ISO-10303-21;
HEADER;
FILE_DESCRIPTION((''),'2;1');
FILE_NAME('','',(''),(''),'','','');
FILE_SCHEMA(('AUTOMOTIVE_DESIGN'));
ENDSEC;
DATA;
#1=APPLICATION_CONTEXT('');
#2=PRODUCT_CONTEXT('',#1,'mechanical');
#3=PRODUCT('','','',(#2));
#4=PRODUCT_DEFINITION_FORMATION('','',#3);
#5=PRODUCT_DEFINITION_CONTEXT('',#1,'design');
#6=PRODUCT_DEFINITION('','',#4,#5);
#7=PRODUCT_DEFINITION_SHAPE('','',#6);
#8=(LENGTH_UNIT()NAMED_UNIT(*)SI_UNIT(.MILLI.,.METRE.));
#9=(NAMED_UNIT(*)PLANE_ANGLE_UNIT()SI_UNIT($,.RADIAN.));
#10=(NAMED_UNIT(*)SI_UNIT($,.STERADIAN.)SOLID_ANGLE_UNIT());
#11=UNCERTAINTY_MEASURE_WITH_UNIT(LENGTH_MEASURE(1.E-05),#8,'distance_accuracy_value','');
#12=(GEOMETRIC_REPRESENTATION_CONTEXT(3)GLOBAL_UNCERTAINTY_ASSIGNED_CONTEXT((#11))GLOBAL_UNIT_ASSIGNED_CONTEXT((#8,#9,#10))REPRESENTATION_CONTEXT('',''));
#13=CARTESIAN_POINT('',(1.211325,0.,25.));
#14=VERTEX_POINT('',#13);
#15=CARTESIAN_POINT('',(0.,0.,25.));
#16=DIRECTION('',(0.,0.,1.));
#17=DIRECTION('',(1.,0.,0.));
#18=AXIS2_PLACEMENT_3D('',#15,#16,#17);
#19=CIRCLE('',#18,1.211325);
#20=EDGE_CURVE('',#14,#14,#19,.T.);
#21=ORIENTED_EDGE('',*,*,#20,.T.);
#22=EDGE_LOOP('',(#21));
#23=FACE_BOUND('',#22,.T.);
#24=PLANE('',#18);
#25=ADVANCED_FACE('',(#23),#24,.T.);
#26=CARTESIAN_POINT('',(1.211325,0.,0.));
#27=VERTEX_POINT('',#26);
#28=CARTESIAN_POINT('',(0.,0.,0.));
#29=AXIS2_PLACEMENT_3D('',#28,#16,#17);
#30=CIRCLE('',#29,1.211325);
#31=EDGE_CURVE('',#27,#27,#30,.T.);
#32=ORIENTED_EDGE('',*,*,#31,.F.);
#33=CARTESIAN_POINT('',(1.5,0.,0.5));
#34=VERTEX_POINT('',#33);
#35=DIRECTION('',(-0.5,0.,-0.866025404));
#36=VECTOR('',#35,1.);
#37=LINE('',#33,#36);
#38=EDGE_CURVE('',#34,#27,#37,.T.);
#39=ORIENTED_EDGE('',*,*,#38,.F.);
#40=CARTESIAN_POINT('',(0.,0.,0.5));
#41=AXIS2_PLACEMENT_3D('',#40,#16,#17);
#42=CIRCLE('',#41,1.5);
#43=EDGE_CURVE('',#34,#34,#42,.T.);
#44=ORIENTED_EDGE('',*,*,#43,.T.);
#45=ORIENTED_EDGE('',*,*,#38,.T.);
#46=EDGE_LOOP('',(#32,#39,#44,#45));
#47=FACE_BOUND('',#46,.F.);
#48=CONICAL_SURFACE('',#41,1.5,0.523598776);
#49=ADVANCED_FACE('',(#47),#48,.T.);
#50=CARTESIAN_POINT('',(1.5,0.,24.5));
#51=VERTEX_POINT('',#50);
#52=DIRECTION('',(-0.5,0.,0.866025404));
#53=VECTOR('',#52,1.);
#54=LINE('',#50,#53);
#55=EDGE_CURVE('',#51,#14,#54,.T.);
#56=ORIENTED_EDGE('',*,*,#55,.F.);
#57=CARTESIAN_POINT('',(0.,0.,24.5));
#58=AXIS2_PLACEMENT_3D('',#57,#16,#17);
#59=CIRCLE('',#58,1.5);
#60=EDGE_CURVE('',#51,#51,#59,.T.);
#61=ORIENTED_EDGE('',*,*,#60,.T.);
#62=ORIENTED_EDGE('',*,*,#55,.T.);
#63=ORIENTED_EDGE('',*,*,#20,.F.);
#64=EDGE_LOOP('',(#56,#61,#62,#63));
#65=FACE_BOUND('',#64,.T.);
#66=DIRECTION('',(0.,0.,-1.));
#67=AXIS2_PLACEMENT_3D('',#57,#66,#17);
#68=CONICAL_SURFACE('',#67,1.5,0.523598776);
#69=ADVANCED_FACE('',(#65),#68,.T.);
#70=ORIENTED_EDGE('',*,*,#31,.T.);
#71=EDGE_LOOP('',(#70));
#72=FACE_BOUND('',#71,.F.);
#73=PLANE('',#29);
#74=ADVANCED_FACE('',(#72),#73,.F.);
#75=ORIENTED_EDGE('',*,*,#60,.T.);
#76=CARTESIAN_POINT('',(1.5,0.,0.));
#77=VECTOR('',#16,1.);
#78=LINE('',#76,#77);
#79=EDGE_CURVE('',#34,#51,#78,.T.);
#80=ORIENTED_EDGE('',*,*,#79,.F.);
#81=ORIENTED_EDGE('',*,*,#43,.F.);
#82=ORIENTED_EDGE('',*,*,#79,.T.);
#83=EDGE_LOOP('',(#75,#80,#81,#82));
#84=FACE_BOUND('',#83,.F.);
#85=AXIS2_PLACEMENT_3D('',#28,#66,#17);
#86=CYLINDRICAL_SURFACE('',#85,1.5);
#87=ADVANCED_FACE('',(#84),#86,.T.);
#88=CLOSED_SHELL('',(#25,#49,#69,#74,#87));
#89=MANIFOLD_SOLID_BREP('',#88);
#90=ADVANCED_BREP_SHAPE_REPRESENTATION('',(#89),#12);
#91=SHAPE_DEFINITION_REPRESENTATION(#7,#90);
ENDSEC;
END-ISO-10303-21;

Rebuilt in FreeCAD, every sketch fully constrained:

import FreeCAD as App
import Part
import Sketcher
from FreeCAD import Vector


def edges_at(feature, points):
    """Names of the edges that pass closest to the given points."""
    edges = feature.Shape.Edges
    near = lambda p: min(range(len(edges)), key=lambda i: edges[i].distToShape(Part.Vertex(*p))[0])
    return sorted({f"Edge{near(p) + 1}" for p in points})

doc = App.newDocument("Part")
params = doc.addObject("Spreadsheet::Sheet", "Params")
for row, (alias, value) in enumerate([
    ("sketch1_diameter", "3 mm"),
    ("pad1_length", "25 mm"),
    ("chamfer_size", "0.5 mm"),
], start=1):
    params.set(f"A{row}", alias)
    params.set(f"B{row}", "=" + value)
    params.setAlias(f"B{row}", alias)

body = doc.addObject("PartDesign::Body", "Body")

# Sketch on XY plane
sketch1 = body.newObject("Sketcher::SketchObject", "Sketch")
sketch1.AttachmentSupport = (doc.getObject("XY_Plane"), [""])
sketch1.MapMode = "FlatFace"
sketch1.addGeometry(Part.Circle(Vector(0, 0, 0), Vector(0, 0, 1), 1.5), False)
sketch1.addConstraint([
    Sketcher.Constraint("Coincident", 0, 3, -1, 1),
    Sketcher.Constraint("Diameter", 0, 3.0),
])
sketch1.setExpression("Constraints[1]", "Params.sketch1_diameter")
pad1 = body.newObject("PartDesign::Pad", "Pad")
pad1.Profile = sketch1
pad1.setExpression("Length", "Params.pad1_length")
doc.recompute()

chamfer = body.newObject("PartDesign::Chamfer", "Chamfer")
chamfer.Base = (pad1, edges_at(pad1, [(-1.5, 0, 25), (-1.5, 0, 0)]))
chamfer.ChamferType = "Distance and Angle"
chamfer.setExpression("Size", "Params.chamfer_size")
chamfer.Angle = 30

doc.recompute()
